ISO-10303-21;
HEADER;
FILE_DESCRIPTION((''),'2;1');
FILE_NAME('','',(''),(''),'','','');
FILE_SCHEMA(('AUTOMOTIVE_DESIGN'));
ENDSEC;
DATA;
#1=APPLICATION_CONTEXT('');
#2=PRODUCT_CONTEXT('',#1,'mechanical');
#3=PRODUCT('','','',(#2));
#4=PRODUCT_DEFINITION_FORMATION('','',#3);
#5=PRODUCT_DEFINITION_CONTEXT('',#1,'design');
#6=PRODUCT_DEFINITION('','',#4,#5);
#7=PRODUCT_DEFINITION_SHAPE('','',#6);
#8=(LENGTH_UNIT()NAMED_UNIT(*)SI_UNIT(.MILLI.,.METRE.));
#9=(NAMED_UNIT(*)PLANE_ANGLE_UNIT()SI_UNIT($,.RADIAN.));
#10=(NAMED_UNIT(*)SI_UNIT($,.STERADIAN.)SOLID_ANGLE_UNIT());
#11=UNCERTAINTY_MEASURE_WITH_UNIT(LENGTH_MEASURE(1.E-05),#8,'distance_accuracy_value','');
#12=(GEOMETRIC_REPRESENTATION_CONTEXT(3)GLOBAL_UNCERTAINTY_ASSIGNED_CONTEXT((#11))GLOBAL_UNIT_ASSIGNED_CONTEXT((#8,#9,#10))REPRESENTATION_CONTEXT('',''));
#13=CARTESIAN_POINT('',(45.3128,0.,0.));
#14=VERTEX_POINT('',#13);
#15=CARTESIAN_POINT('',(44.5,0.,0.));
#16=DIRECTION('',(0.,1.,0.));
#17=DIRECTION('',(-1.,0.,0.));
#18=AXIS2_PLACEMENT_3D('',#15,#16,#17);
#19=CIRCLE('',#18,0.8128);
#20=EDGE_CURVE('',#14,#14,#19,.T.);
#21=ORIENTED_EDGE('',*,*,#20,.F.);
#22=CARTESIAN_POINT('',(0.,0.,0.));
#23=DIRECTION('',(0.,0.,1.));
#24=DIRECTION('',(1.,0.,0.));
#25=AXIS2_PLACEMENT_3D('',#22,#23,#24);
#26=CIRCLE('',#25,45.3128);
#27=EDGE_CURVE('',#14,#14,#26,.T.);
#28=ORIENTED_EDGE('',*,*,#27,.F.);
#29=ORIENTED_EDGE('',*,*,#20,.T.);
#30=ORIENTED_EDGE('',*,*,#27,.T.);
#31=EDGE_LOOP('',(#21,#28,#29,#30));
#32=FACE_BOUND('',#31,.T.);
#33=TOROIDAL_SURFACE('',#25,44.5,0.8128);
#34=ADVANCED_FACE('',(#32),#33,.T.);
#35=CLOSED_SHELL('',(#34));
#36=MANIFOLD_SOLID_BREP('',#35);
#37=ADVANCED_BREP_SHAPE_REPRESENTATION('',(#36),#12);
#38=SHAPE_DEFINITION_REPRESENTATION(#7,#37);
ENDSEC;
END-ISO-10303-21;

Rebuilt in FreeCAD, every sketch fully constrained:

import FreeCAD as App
import Part
import Sketcher
from FreeCAD import Vector
Q = App.Units.Quantity

doc = App.newDocument("Part")
body = doc.addObject("PartDesign::Body", "Body")

sketch1 = body.newObject("Sketcher::SketchObject", "Sketch")
sketch1.AttachmentSupport = (doc.getObject("XZ_Plane"), [""])
sketch1.MapMode = "FlatFace"
sketch1.addGeometry(Part.Circle(Vector(44.5, 0, 0), Vector(0, 0, 1), 0.8), False)
sketch1.addConstraint([
    Sketcher.Constraint("PointOnObject", 0, 3, -1),
    Sketcher.Constraint("Diameter", 0, Q("1.6256 mm")),
    Sketcher.Constraint("DistanceX", -1, 1, 0, 3, Q("44.5 mm")),
])

sketch2 = body.newObject("Sketcher::SketchObject", "Sketch001")
sketch2.AttachmentSupport = (doc.getObject("XY_Plane"), [""])
sketch2.MapMode = "FlatFace"
sketch2.addGeometry(Part.Circle(Vector(0, 0, 0), Vector(0, 0, 1), 44), False)
sketch2.addConstraint([
    Sketcher.Constraint("Coincident", 0, 3, -1, 1),
    Sketcher.Constraint("Diameter", 0, Q("89 mm")),
])
doc.recompute()

additivepipe = body.newObject("PartDesign::AdditivePipe", "AdditivePipe")
additivepipe.Profile = sketch1
additivepipe.Spine = (sketch2, ["Edge1"])

doc.recompute()
